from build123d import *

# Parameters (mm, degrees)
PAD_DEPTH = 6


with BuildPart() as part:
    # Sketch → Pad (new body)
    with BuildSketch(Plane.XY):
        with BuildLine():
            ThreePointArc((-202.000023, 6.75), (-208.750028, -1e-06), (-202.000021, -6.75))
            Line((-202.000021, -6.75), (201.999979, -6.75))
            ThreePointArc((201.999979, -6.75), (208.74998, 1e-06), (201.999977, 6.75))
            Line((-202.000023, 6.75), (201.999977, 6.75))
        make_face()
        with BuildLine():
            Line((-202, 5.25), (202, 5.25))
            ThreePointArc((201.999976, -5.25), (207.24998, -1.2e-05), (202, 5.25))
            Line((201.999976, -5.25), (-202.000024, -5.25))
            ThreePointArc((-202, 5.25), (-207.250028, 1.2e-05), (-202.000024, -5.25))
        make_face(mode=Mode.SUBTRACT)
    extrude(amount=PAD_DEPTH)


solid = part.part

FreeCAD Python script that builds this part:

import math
import FreeCAD as App
import Part
import Sketcher
from FreeCAD import Vector
Q = App.Units.Quantity

doc = App.newDocument("Part")
body = doc.addObject("PartDesign::Body", "Body")

sketch1 = body.newObject("Sketcher::SketchObject", "Sketch")
sketch1.AttachmentSupport = (doc.getObject("XY_Plane"), [""])
sketch1.MapMode = "FlatFace"
sketch1.addGeometry([
    Part.ArcOfCircle(Part.Circle(Vector(-202, 0, 0), Vector(0, 0, 1), 7), math.radians(90), math.radians(270)),
    Part.LineSegment(Vector(-202, -7, 0), Vector(202, -7, 0)),
    Part.ArcOfCircle(Part.Circle(Vector(202, 0, 0), Vector(0, 0, 1), 7), math.radians(-90), math.radians(90)),
    Part.LineSegment(Vector(202, 7, 0), Vector(-202, 7, 0)),
    Part.ArcOfCircle(Part.Circle(Vector(-202, 0, 0), Vector(0, 0, 1), 5), math.radians(90), math.radians(270)),
    Part.LineSegment(Vector(-202, 5, 0), Vector(202, 5, 0)),
    Part.ArcOfCircle(Part.Circle(Vector(202, 0, 0), Vector(0, 0, 1), 5), math.radians(-90), math.radians(90)),
    Part.LineSegment(Vector(202, -5, 0), Vector(-202, -5, 0)),
], False)
sketch1.addConstraint([
    Sketcher.Constraint("Tangent", 0, 2, 1, 1),
    Sketcher.Constraint("Tangent", 1, 2, 2, 1),
    Sketcher.Constraint("Tangent", 2, 2, 3, 1),
    Sketcher.Constraint("Tangent", 3, 2, 0, 1),
    Sketcher.Constraint("Coincident", 4, 1, 5, 1),
    Sketcher.Constraint("Coincident", 5, 2, 6, 2),
    Sketcher.Constraint("Tangent", 6, 1, 7, 1),
    Sketcher.Constraint("Tangent", 7, 2, 4, 2),
    Sketcher.Constraint("Horizontal", 1),
    Sketcher.Constraint("Horizontal", 3),
    Sketcher.Constraint("Horizontal", 5),
    Sketcher.Constraint("Horizontal", 7),
    Sketcher.Constraint("Coincident", 4, 3, 0, 3),
    Sketcher.Constraint("PointOnObject", 0, 3, -1),
    Sketcher.Constraint("Vertical", 6, 3, 1, 2),
    Sketcher.Constraint("Equal", 3, 5),
    Sketcher.Constraint("DistanceX", 1, 1, 1, 2, Q("404 mm")),
    Sketcher.Constraint("Radius", 0, Q("6.75 mm")),
    Sketcher.Constraint("Radius", 4, Q("5.25 mm")),
    Sketcher.Constraint("DistanceX", 4, 1, -1, 1, Q("202 mm")),
    Sketcher.Constraint("DistanceX", -1, 1, 2, 3, Q("201.99998 mm")),
])
pad1 = body.newObject("PartDesign::Pad", "Pad")
pad1.Profile = sketch1
pad1.Length = 6

doc.recompute()
